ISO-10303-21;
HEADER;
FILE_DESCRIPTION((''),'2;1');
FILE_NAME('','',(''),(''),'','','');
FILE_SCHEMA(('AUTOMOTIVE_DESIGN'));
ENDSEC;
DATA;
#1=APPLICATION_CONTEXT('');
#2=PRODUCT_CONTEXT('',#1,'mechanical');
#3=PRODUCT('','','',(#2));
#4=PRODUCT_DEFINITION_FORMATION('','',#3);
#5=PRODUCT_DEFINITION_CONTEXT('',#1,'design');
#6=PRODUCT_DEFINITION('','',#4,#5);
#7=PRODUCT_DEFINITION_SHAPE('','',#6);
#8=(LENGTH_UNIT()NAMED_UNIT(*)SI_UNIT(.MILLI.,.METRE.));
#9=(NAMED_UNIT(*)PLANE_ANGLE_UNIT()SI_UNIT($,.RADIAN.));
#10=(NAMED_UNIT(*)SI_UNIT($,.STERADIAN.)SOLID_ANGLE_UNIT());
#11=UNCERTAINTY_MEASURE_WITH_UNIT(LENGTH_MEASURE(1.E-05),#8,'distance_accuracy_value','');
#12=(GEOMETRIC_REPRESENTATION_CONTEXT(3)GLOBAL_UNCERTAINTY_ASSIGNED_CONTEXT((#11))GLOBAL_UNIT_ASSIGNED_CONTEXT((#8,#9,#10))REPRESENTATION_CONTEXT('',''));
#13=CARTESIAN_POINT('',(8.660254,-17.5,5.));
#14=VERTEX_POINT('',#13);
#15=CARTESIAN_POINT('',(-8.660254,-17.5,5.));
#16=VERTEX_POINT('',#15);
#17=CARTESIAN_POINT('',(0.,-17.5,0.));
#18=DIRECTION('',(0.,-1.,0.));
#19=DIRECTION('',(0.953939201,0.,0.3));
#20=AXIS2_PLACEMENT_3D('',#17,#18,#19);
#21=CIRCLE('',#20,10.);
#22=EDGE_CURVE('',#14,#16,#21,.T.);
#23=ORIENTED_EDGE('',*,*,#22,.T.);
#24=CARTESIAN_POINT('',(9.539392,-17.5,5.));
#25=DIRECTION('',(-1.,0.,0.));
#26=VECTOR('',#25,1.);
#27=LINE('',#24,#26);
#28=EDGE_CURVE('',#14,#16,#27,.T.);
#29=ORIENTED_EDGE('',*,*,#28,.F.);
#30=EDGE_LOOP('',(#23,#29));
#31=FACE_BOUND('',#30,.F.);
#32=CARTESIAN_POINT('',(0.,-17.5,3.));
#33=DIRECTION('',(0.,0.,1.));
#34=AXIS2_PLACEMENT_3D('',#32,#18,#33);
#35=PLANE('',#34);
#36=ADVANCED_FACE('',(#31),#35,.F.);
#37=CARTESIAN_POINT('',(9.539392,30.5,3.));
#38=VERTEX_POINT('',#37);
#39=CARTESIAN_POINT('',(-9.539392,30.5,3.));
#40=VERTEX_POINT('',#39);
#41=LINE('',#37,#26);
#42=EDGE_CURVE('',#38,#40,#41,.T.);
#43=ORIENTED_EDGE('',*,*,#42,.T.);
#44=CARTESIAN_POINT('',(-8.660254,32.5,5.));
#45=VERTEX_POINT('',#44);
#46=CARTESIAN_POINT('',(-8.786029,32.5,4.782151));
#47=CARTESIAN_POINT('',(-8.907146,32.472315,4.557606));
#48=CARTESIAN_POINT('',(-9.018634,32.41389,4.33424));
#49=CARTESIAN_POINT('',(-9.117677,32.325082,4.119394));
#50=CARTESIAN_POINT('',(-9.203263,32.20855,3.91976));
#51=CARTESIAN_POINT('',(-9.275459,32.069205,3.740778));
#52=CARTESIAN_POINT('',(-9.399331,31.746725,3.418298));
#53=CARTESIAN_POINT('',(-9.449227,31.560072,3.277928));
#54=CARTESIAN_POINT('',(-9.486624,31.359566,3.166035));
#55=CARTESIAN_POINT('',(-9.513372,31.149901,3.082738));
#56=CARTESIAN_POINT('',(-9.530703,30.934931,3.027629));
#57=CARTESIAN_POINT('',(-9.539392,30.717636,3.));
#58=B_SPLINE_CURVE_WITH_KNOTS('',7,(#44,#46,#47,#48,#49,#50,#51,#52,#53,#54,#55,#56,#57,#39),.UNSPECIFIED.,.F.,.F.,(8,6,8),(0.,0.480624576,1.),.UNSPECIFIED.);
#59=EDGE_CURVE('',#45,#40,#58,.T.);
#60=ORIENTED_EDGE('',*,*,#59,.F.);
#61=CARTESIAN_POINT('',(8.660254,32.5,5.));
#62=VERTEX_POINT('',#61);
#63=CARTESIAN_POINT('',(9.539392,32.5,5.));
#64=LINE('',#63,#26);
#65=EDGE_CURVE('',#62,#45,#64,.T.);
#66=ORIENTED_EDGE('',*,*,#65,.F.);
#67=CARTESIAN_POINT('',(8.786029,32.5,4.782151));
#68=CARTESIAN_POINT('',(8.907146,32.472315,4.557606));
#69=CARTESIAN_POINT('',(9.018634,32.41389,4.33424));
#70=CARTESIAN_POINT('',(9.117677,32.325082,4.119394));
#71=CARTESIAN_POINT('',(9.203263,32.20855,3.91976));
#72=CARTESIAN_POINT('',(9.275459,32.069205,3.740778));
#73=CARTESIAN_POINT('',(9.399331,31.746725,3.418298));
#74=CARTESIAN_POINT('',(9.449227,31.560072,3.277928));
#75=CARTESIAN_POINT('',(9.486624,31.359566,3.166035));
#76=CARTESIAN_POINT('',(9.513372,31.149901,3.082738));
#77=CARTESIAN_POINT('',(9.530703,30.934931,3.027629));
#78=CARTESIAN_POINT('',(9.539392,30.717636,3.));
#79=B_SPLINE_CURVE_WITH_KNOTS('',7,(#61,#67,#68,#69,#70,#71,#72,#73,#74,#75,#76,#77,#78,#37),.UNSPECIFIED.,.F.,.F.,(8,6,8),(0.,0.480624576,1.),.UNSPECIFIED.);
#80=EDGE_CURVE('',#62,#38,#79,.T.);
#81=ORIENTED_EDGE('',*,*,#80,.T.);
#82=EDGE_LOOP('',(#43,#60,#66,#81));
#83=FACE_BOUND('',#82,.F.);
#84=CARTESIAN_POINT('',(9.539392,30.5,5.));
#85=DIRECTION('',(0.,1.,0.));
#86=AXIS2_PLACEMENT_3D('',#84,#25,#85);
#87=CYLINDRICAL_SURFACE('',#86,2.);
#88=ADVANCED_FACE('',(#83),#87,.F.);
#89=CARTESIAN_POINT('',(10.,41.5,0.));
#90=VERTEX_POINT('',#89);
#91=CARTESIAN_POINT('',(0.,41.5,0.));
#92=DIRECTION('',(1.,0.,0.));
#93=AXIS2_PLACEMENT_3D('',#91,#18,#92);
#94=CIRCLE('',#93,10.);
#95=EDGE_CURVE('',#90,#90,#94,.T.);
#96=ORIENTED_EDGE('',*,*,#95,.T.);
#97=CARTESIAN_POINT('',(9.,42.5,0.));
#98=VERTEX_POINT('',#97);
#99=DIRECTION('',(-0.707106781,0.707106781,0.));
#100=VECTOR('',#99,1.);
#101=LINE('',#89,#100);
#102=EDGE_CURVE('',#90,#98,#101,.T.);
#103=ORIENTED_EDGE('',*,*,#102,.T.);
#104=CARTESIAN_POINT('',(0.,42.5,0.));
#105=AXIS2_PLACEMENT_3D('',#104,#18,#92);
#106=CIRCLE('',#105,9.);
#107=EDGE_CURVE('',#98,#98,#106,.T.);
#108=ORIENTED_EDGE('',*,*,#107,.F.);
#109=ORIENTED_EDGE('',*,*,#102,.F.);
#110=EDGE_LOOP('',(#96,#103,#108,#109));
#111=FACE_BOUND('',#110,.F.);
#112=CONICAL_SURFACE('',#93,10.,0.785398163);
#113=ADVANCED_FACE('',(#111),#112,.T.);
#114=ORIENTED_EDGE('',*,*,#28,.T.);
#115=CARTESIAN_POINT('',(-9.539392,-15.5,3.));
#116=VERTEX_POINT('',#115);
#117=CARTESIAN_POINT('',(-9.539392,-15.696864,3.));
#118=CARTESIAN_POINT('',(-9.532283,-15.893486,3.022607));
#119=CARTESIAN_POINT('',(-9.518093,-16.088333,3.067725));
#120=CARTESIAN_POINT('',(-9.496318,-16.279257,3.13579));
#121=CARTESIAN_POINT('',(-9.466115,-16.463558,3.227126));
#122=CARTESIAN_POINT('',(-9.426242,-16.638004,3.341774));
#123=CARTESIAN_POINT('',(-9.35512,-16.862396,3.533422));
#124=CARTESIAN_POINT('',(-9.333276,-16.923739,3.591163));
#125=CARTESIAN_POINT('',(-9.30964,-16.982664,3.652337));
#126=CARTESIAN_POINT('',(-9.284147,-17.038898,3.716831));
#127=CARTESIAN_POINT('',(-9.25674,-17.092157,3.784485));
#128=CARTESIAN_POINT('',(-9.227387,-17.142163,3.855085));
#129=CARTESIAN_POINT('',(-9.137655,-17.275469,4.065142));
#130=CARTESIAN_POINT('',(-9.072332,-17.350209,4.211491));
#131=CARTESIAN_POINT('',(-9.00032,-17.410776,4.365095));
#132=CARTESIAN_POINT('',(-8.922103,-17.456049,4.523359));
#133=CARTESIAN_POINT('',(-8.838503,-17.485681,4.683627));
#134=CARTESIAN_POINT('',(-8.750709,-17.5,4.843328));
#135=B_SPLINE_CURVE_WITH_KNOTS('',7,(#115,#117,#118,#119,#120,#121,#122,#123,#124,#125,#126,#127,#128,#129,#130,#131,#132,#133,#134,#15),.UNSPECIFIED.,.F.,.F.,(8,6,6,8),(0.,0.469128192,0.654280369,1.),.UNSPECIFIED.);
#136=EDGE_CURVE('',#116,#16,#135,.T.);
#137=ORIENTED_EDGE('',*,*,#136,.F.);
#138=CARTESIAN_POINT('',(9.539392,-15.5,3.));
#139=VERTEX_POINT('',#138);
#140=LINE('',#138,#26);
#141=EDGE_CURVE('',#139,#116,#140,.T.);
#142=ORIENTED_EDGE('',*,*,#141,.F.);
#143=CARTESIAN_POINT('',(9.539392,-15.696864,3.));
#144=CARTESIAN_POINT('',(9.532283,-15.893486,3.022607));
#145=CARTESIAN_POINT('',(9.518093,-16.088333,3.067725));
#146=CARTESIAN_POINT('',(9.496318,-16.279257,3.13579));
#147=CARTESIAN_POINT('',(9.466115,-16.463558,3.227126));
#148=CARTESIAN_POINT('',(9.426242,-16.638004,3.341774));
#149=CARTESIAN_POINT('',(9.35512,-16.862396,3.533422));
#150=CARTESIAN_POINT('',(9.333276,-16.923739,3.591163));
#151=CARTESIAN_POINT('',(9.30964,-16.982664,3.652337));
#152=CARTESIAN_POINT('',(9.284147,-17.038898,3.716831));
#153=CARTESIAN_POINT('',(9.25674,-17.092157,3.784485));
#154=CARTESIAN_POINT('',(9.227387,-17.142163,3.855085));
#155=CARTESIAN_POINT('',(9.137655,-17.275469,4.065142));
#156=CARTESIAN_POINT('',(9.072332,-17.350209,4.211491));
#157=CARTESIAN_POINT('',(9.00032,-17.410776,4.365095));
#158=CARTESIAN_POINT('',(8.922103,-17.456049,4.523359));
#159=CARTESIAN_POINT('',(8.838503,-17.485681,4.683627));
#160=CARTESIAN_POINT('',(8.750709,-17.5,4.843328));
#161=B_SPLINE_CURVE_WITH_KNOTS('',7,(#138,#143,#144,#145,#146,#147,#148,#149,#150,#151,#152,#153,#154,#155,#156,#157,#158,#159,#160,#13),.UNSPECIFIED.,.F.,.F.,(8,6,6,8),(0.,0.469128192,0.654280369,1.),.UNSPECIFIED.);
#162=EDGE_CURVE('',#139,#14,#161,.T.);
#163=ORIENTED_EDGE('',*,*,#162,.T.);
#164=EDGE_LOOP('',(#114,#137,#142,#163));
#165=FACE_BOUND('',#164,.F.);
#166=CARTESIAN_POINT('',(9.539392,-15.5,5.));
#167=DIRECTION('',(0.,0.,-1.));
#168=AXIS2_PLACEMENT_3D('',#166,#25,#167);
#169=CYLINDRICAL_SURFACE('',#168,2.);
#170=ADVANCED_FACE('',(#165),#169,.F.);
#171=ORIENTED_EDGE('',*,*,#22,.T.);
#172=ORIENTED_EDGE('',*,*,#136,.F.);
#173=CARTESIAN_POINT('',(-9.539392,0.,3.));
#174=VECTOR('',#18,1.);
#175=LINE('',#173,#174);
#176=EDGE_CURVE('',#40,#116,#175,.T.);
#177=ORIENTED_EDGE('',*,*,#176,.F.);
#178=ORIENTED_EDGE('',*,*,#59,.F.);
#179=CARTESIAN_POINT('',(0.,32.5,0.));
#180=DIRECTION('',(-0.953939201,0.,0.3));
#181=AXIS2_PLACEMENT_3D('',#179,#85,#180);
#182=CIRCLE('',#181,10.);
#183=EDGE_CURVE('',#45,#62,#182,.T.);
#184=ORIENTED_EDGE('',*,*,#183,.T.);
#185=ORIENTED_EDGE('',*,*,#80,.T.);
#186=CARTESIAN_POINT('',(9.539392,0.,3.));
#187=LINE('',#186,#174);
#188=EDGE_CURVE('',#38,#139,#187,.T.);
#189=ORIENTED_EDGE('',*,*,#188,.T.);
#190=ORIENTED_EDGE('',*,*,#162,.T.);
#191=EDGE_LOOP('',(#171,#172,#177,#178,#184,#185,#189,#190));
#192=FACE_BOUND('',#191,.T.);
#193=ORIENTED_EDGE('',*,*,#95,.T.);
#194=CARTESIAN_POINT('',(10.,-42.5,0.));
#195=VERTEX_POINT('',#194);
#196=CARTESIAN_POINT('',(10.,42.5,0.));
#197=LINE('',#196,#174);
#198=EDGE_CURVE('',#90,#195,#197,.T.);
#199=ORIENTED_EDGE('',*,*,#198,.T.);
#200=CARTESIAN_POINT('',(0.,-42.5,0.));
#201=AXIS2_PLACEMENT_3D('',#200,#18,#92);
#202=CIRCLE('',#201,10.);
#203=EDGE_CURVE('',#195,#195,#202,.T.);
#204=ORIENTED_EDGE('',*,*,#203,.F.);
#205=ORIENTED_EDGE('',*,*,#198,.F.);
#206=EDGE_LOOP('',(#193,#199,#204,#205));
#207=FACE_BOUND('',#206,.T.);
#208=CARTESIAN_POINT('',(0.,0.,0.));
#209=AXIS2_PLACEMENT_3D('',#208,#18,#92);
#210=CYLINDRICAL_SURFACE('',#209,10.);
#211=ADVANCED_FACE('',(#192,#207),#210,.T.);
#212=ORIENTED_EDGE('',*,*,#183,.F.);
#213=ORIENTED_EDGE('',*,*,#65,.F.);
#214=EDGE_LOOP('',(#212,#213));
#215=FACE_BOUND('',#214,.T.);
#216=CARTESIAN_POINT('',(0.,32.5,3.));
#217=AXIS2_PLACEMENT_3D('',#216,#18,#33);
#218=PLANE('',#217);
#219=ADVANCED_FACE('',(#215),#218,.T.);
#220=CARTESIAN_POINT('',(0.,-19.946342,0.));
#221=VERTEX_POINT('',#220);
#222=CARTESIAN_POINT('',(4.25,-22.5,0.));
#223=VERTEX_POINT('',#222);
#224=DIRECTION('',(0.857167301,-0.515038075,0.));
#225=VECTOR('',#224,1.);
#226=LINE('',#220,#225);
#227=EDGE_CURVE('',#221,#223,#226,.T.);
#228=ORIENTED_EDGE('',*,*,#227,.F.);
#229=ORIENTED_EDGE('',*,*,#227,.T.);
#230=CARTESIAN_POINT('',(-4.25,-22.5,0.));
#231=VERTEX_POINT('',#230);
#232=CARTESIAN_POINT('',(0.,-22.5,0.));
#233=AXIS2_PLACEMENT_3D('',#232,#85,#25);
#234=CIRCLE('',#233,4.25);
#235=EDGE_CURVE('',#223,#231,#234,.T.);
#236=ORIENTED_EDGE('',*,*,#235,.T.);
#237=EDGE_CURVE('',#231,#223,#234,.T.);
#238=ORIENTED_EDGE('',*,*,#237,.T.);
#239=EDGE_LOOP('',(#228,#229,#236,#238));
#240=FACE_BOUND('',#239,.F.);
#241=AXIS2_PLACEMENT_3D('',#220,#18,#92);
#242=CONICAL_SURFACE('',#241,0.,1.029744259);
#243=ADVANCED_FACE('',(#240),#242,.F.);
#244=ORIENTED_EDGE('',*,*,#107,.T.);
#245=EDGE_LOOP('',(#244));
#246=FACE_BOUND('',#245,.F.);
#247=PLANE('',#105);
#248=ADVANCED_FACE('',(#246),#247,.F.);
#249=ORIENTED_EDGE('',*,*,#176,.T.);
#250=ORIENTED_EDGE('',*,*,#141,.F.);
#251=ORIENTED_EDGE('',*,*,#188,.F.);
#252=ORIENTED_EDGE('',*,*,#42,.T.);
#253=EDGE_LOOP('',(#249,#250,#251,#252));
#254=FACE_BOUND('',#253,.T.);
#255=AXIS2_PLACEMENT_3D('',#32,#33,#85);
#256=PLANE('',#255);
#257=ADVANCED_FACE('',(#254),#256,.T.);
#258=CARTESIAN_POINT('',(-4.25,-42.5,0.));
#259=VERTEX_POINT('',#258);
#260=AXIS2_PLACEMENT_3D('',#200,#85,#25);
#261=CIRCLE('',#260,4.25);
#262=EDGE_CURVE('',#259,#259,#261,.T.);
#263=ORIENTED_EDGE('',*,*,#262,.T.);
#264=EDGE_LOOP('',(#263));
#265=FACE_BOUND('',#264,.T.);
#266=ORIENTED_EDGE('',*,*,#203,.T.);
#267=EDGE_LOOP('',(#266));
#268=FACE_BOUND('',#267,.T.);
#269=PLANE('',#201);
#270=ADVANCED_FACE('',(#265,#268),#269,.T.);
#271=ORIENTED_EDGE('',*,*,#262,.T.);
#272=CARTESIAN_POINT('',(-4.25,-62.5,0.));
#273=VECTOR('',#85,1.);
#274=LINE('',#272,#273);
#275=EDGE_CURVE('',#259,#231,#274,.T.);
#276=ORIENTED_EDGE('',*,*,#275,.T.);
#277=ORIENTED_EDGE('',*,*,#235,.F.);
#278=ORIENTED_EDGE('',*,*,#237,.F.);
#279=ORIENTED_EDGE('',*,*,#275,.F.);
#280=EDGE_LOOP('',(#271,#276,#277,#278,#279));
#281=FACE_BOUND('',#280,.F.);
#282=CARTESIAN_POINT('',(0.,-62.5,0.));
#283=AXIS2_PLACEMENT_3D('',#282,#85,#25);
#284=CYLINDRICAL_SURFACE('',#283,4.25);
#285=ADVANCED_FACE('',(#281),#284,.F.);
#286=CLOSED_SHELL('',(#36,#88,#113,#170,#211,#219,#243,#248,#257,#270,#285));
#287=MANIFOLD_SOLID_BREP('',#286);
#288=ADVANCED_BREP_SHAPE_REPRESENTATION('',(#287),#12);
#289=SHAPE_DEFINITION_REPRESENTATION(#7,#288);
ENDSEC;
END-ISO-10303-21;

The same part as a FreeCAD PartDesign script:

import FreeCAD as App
import Part
import Sketcher
from FreeCAD import Vector


def edges_at(feature, points):
    """Names of the edges that pass closest to the given points."""
    edges = feature.Shape.Edges
    near = lambda p: min(range(len(edges)), key=lambda i: edges[i].distToShape(Part.Vertex(*p))[0])
    return sorted({f"Edge{near(p) + 1}" for p in points})


def add_polygon(sketch, points):
    """Adds a closed chain of lines whose ends are joined by coincident constraints."""
    first, n = sketch.GeometryCount, len(points)
    for a, b in zip(points, points[1:] + points[:1]):
        sketch.addGeometry(Part.LineSegment(App.Vector(*a, 0), App.Vector(*b, 0)), False)
    for i in range(n):
        sketch.addConstraint(Sketcher.Constraint("Coincident", first + i, 2, first + (i + 1) % n, 1))

doc = App.newDocument("Part")
body = doc.addObject("PartDesign::Body", "Body")

sketch1 = body.newObject("Sketcher::SketchObject", "Sketch")
sketch1.AttachmentSupport = (doc.getObject("XZ_Plane"), [""])
sketch1.MapMode = "FlatFace"
sketch1.addGeometry(Part.Circle(Vector(0, 0, 0), Vector(0, 0, 1), 10), False)
sketch1.addConstraint([
    Sketcher.Constraint("Coincident", 0, 3, -1, 1),
    Sketcher.Constraint("Diameter", 0, 20.0),
])
pad1 = body.newObject("PartDesign::Pad", "Pad")
pad1.Profile = sketch1
pad1.Length = 85
pad1.Midplane = True

sketch2 = body.newObject("Sketcher::SketchObject", "Sketch001")
sketch2.AttachmentSupport = (doc.getObject("XZ_Plane"), [""])
sketch2.MapMode = "FlatFace"
sketch2.AttachmentOffset = App.Placement(Vector(0, 0, 42.5), App.Rotation())
sketch2.addGeometry(Part.Circle(Vector(0, 0, 0), Vector(0, 0, 1), 4.2), False)
sketch2.addConstraint([
    Sketcher.Constraint("Coincident", 0, 3, -1, 1),
    Sketcher.Constraint("Diameter", 0, 8.5),
])
doc.recompute()
hole = body.newObject("PartDesign::Hole", "Hole")
hole.Profile = sketch2
hole.ThreadType = "None"
hole.Diameter = 8.5
hole.DepthType = "Dimension"
hole.Depth = 20
hole.DrillPoint = "Angled"
hole.DrillPointAngle = 118
doc.recompute()

chamfer = body.newObject("PartDesign::Chamfer", "Chamfer")
chamfer.Base = (hole, edges_at(hole, [(-10, 42.5, 0)]))
chamfer.Size = 1

sketch3 = body.newObject("Sketcher::SketchObject", "Sketch002")
sketch3.AttachmentSupport = (doc.getObject("YZ_Plane"), [""])
sketch3.MapMode = "FlatFace"
add_polygon(sketch3, [(-18, 10), (-18, 3), (32, 3), (32, 10)])
sketch3.addConstraint([
    Sketcher.Constraint("Vertical", 0),
    Sketcher.Constraint("Horizontal", 1),
    Sketcher.Constraint("Vertical", 2),
    Sketcher.Constraint("Horizontal", 3),
    Sketcher.Constraint("DistanceX", 1, 1, 1, 2, 50.0),
    Sketcher.Constraint("DistanceY", 0, 2, 0, 1, 7.0),
    Sketcher.Constraint("DistanceY", -1, 1, 0, 2, 3.0),
    Sketcher.Constraint("DistanceX", 0, 2, -1, 1, 17.5),
])
pocket1 = body.newObject("PartDesign::Pocket", "Pocket")
pocket1.Profile = sketch3
pocket1.Type = "ThroughAll"
pocket1.Midplane = True
doc.recompute()

fillet = body.newObject("PartDesign::Fillet", "Fillet")
fillet.Base = (pocket1, edges_at(pocket1, [(0, -17.5, 3), (0, 32.5, 3)]))
fillet.Radius = 2

doc.recompute()
